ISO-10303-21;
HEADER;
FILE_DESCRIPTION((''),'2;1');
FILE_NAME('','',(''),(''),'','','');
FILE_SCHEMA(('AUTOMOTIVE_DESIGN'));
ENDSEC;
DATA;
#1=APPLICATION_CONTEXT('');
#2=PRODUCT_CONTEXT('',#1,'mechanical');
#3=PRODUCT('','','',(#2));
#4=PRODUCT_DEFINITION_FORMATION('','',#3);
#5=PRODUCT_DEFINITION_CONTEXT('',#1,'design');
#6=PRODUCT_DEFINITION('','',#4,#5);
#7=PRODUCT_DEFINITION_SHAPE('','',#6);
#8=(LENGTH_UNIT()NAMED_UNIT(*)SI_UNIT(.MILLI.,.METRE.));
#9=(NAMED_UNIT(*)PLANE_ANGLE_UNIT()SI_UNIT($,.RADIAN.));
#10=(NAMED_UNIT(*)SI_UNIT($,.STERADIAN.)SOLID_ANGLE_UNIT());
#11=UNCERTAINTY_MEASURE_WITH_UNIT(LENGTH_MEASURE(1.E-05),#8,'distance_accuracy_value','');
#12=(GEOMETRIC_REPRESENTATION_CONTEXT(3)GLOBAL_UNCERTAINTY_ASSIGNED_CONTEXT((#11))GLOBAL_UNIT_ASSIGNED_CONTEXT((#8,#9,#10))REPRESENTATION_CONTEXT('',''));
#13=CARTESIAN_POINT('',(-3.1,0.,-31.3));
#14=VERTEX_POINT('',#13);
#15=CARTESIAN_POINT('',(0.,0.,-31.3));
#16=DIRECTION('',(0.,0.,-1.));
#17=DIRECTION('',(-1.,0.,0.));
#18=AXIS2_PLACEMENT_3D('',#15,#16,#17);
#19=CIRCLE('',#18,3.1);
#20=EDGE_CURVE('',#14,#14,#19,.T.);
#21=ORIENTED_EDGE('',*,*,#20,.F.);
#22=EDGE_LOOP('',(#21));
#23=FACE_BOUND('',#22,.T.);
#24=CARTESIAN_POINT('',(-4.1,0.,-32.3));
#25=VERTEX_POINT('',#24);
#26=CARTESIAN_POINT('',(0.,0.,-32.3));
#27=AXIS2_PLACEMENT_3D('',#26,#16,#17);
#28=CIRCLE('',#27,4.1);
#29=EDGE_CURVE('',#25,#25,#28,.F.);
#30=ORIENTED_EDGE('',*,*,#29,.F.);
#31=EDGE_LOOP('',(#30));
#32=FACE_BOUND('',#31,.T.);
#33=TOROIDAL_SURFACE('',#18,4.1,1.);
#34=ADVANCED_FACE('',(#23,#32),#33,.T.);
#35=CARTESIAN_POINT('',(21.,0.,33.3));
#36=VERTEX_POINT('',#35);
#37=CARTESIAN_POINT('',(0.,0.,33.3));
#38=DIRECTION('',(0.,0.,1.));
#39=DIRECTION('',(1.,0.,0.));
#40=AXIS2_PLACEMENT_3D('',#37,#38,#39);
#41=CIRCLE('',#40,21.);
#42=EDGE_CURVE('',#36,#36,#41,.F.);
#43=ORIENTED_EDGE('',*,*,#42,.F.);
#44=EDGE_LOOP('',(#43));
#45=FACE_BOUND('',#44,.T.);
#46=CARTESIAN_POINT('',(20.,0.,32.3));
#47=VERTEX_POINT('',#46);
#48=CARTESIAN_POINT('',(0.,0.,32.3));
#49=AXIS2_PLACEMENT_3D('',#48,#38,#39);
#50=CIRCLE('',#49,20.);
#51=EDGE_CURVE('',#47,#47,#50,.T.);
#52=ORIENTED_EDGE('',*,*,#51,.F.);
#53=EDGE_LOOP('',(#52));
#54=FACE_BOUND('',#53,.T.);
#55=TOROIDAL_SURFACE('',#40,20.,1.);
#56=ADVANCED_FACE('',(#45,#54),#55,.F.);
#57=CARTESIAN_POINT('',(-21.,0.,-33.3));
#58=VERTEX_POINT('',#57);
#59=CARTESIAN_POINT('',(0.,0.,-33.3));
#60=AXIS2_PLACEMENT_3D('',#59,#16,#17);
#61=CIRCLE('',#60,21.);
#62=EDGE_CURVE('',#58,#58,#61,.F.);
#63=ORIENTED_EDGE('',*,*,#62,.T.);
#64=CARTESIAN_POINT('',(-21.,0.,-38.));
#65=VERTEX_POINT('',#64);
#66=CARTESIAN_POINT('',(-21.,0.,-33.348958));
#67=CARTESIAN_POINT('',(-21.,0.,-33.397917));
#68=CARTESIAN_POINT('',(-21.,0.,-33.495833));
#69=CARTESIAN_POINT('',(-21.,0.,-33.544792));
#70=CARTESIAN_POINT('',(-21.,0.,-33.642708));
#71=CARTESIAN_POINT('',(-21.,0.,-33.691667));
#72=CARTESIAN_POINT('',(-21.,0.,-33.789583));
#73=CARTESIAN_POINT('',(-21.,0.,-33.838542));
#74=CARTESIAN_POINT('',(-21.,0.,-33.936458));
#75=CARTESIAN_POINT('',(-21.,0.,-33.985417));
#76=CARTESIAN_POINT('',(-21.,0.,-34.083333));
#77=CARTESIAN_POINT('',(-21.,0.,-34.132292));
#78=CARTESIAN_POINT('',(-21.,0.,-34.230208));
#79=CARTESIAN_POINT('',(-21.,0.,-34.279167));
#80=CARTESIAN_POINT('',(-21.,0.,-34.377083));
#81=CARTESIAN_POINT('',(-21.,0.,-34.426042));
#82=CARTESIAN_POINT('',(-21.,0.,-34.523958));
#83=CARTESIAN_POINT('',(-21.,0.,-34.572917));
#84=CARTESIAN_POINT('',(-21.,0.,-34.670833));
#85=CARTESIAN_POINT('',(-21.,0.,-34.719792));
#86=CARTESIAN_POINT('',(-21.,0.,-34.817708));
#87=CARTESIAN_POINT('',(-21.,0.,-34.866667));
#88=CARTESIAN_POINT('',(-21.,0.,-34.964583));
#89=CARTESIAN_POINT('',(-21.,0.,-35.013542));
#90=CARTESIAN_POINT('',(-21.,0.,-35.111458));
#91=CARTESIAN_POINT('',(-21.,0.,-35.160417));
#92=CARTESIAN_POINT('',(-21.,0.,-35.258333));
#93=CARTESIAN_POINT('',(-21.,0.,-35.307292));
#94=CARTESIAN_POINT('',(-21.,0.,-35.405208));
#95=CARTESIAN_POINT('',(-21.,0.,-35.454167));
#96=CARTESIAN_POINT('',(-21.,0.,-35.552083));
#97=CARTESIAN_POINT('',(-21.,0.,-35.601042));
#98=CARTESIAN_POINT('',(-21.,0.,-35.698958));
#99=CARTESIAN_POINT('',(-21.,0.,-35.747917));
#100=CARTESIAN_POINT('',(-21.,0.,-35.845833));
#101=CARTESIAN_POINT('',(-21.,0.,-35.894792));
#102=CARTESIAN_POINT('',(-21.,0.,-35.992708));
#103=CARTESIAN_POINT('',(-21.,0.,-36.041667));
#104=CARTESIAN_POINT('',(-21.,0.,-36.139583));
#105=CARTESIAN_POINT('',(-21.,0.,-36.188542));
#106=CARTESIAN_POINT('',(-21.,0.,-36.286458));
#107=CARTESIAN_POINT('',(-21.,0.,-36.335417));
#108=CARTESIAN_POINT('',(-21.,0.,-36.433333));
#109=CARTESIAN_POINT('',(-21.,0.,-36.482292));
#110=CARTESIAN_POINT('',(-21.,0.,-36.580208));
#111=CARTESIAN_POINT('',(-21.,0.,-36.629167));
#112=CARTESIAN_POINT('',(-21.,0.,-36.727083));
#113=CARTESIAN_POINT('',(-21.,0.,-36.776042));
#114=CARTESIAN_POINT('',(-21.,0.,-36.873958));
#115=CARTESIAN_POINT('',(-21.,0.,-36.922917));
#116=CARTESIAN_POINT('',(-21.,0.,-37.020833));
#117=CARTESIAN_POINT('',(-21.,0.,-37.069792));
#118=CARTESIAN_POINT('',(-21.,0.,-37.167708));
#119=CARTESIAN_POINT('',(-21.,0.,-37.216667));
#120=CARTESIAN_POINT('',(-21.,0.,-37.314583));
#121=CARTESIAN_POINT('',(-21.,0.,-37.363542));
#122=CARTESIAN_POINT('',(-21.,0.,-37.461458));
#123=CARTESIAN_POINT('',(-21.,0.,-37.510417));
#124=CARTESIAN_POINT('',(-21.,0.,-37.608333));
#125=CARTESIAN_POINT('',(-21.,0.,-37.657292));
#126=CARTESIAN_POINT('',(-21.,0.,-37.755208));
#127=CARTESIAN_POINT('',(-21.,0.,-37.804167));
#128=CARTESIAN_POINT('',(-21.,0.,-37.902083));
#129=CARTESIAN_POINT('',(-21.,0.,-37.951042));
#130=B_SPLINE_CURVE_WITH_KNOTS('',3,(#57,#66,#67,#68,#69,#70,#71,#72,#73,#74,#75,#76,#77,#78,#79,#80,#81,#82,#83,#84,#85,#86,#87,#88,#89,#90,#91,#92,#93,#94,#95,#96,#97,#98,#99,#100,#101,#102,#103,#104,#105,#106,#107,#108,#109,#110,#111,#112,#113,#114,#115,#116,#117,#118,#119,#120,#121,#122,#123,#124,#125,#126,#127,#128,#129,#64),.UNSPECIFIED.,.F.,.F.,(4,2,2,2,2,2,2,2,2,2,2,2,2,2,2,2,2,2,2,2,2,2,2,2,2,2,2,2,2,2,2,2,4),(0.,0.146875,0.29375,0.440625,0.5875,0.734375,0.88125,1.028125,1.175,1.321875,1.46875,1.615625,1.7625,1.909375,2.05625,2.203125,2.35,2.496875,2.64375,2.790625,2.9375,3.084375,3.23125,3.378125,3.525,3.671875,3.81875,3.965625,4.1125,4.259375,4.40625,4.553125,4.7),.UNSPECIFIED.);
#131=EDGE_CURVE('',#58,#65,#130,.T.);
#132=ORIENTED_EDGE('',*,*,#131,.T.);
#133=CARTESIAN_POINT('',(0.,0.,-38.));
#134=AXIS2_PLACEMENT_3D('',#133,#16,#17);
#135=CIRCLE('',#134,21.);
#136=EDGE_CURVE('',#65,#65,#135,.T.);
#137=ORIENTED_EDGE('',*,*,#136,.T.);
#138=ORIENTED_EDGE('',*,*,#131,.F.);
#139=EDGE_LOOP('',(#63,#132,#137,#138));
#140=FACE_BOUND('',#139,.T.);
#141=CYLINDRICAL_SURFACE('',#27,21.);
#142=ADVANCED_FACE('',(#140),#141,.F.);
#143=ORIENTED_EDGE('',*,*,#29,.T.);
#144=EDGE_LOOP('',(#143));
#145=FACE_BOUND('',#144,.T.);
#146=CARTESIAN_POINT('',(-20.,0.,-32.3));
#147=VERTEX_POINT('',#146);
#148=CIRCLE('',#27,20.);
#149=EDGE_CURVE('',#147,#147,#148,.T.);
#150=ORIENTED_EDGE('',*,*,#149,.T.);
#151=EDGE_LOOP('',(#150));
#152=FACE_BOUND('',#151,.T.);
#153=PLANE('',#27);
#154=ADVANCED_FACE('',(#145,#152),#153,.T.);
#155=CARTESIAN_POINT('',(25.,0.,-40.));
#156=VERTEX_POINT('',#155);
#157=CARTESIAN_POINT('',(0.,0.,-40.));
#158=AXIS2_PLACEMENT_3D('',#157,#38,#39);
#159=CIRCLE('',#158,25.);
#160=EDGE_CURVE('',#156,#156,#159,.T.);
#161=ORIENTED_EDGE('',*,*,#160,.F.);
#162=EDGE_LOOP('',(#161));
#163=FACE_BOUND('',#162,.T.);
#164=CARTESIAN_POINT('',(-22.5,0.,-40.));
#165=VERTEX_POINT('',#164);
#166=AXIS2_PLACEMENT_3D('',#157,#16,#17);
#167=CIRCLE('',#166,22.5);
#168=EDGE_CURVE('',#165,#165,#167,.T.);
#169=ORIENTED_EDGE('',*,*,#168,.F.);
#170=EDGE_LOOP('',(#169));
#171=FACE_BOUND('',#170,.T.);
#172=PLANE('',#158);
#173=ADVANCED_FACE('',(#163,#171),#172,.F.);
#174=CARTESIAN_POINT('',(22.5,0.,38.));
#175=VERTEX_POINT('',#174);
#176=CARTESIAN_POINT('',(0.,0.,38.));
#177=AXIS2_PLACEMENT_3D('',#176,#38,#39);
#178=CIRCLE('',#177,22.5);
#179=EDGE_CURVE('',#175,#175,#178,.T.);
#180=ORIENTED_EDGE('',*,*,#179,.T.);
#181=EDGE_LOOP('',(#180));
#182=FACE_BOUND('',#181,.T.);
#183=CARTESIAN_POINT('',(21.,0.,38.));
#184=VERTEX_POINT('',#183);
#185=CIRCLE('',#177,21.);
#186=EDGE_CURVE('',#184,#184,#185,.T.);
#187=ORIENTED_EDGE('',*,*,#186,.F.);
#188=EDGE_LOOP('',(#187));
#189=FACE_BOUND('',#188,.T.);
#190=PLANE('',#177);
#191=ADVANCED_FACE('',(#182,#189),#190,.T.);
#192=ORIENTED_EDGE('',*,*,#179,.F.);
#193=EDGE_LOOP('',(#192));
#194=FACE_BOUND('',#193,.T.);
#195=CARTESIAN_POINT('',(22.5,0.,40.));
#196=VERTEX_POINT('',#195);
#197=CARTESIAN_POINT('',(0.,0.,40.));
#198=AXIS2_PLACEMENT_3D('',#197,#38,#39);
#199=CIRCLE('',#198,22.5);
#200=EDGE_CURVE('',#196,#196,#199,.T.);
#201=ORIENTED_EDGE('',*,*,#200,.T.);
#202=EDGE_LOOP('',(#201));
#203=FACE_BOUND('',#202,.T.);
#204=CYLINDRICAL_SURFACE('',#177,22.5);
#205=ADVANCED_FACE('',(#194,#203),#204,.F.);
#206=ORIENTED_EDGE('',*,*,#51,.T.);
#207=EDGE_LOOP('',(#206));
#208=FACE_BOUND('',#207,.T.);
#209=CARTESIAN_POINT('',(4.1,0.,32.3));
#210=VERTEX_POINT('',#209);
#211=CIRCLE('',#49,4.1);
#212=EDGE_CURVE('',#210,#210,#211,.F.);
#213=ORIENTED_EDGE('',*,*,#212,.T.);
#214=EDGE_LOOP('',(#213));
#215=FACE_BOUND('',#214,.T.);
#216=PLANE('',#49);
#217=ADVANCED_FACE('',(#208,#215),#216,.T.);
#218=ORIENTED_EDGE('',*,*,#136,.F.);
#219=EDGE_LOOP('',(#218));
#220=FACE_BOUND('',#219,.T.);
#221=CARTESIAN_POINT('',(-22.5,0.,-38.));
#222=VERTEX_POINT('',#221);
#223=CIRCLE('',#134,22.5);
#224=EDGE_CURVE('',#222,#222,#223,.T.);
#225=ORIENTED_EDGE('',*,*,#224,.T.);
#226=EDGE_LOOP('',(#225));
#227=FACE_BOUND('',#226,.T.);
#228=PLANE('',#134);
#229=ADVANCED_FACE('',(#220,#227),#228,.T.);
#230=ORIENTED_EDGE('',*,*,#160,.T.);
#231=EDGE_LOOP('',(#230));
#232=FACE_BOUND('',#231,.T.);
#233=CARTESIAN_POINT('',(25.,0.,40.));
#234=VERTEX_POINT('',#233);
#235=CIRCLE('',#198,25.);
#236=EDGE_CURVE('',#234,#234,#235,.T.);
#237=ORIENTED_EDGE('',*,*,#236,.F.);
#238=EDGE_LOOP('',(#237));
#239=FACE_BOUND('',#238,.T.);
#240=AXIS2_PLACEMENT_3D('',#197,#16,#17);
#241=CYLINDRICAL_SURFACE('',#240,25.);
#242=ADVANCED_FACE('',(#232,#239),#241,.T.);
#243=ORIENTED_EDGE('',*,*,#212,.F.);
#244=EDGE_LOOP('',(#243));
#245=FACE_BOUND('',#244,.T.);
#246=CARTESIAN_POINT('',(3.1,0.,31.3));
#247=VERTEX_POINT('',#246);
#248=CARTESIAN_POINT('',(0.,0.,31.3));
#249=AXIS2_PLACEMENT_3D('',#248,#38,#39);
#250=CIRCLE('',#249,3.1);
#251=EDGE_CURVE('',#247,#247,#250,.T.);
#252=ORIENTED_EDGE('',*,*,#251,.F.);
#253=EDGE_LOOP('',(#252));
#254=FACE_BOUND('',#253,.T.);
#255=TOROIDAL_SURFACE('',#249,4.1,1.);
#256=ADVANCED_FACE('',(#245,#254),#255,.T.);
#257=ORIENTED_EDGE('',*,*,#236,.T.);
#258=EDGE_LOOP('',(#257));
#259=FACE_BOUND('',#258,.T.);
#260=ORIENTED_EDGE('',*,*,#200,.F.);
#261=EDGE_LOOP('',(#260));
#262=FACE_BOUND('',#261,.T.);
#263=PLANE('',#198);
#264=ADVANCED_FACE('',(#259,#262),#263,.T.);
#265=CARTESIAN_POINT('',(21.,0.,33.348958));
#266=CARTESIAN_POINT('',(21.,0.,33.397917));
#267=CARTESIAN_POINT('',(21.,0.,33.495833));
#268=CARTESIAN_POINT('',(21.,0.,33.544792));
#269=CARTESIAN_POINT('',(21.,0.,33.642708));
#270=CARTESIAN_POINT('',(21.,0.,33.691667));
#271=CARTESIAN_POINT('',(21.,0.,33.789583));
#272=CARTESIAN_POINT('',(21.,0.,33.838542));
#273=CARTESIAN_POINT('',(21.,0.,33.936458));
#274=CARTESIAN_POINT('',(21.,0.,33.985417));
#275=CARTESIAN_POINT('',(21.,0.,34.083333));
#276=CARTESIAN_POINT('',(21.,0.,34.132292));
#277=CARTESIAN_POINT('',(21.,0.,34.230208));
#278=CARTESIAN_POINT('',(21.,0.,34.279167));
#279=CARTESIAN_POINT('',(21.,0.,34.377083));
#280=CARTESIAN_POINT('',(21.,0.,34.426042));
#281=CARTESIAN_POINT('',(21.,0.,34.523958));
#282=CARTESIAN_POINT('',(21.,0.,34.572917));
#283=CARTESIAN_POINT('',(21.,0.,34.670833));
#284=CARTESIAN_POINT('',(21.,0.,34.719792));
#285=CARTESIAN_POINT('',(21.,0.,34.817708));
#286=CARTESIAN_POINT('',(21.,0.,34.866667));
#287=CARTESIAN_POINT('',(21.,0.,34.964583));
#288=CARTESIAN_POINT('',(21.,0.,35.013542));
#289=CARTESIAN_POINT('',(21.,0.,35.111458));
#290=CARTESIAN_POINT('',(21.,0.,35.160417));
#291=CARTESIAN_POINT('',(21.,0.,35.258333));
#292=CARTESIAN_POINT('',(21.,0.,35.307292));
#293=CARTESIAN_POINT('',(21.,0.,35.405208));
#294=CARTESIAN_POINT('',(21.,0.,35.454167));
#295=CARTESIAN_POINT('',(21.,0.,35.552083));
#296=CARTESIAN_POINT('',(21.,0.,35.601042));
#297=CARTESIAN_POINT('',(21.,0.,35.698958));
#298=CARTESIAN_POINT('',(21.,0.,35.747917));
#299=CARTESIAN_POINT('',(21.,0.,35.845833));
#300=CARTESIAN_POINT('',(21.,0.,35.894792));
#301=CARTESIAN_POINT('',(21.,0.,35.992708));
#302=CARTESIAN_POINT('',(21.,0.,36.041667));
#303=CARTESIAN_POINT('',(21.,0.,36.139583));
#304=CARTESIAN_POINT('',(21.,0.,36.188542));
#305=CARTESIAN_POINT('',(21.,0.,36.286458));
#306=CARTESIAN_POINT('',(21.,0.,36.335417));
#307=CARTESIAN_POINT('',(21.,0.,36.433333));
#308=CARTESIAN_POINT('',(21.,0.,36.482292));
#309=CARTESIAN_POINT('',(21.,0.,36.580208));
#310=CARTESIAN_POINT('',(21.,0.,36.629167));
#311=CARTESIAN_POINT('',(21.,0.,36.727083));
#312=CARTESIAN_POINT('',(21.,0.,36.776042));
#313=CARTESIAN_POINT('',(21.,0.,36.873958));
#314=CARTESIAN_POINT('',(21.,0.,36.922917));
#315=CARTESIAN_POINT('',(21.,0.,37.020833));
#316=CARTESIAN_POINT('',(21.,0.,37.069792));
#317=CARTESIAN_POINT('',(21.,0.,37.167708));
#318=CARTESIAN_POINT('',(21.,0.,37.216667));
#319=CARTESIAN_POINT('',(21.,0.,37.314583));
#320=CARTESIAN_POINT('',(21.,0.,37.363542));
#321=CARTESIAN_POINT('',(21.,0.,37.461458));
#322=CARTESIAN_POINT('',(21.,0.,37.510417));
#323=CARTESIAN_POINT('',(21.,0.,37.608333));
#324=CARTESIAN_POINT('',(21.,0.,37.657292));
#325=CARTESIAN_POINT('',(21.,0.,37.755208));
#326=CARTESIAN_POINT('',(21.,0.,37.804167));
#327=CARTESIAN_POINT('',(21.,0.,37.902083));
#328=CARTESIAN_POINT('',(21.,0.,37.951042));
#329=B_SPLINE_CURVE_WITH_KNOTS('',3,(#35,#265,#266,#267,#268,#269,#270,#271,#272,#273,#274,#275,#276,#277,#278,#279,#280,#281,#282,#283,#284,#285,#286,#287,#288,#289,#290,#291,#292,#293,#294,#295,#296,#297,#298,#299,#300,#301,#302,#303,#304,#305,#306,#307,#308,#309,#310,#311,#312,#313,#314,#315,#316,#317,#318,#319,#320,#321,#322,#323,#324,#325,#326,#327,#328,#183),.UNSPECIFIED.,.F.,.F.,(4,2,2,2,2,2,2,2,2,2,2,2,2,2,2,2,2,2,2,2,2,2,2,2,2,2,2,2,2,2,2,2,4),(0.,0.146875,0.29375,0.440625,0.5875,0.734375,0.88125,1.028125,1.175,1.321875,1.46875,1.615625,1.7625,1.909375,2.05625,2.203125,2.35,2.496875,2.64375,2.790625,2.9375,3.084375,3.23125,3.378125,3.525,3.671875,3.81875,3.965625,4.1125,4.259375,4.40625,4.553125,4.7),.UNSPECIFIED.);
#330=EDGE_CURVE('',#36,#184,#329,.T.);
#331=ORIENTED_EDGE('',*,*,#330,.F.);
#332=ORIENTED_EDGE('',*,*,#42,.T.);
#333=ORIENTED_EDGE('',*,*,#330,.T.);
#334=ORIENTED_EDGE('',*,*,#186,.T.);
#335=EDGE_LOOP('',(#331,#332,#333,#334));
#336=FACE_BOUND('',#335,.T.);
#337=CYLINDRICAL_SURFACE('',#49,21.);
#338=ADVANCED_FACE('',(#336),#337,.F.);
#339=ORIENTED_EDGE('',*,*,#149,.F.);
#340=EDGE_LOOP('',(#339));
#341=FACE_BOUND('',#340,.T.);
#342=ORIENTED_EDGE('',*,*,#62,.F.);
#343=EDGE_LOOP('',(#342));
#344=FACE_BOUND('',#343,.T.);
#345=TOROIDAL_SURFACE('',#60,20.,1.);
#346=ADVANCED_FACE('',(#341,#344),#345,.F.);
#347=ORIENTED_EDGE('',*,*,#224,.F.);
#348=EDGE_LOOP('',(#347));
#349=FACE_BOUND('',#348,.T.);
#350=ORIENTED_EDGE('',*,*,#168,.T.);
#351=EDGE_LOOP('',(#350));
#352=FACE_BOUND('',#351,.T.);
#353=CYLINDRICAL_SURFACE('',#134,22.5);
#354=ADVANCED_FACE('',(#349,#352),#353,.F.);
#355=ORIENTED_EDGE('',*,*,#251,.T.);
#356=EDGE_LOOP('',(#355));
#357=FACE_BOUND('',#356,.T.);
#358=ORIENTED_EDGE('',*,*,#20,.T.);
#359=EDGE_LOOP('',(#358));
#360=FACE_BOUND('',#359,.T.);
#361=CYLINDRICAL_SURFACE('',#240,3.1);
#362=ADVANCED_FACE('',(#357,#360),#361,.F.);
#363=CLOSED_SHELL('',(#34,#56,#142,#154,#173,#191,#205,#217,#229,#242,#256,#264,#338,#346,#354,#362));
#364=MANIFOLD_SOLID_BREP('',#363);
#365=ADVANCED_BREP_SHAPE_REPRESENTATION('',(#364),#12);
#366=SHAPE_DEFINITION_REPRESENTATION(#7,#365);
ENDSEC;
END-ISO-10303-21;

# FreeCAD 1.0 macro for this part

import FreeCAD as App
import Part
import Sketcher


def edges_at(feature, points):
    """Names of the edges that pass closest to the given points."""
    edges = feature.Shape.Edges
    near = lambda p: min(range(len(edges)), key=lambda i: edges[i].distToShape(Part.Vertex(*p))[0])
    return sorted({f"Edge{near(p) + 1}" for p in points})

doc = App.newDocument("Part")
body = doc.addObject("PartDesign::Body", "Body")

# Sketch on XY plane
sketch1 = doc.addObject("Sketcher::SketchObject", "Sketch")
body.addObject(sketch1)
sketch1.AttachmentSupport = (doc.XY_Plane, [""])
sketch1.MapMode = "FlatFace"
sketch1.addGeometry(Part.Circle(App.Vector(0, 0, 0), App.Vector(0, 0, 1), 25), False)
sketch1.addGeometry(Part.Circle(App.Vector(0, 0, 0), App.Vector(0, 0, 1), 3.1), False)
sketch1.addConstraint(Sketcher.Constraint("Coincident", 0, 3, -1, 1))
sketch1.addConstraint(Sketcher.Constraint("Coincident", 1, 3, -1, 1))
sketch1.addConstraint(Sketcher.Constraint("Diameter", 0, 50.0))
sketch1.addConstraint(Sketcher.Constraint("Diameter", 1, 6.2))
pad1 = doc.addObject("PartDesign::Pad", "Pad")
body.addObject(pad1)
pad1.Profile = sketch1
pad1.Length = 80
pad1.Midplane = True

# Sketch on XY plane
sketch2 = doc.addObject("Sketcher::SketchObject", "Sketch001")
body.addObject(sketch2)
sketch2.AttachmentSupport = (doc.XY_Plane, [""])
sketch2.MapMode = "FlatFace"
sketch2.AttachmentOffset = App.Placement(App.Vector(0, 0, 40), App.Rotation())
sketch2.addGeometry(Part.Circle(App.Vector(0, 0, 0), App.Vector(0, 0, 1), 21), False)
sketch2.addConstraint(Sketcher.Constraint("Coincident", 0, 3, -1, 1))
sketch2.addConstraint(Sketcher.Constraint("Diameter", 0, 42.0))
pocket1 = doc.addObject("PartDesign::Pocket", "Pocket")
body.addObject(pocket1)
pocket1.Profile = sketch2
pocket1.Length = 7.7

# Sketch on XY plane
sketch3 = doc.addObject("Sketcher::SketchObject", "Sketch002")
body.addObject(sketch3)
sketch3.AttachmentSupport = (doc.XY_Plane, [""])
sketch3.MapMode = "FlatFace"
sketch3.AttachmentOffset = App.Placement(App.Vector(0, 0, -32.3), App.Rotation())
sketch3.addGeometry(Part.Circle(App.Vector(0, 0, 0), App.Vector(0, 0, 1), 21), False)
sketch3.addConstraint(Sketcher.Constraint("Coincident", 0, 3, -1, 1))
sketch3.addConstraint(Sketcher.Constraint("Diameter", 0, 42.0))
pocket2 = doc.addObject("PartDesign::Pocket", "Pocket001")
body.addObject(pocket2)
pocket2.Profile = sketch3
pocket2.Length = 7.7
doc.recompute()

fillet = doc.addObject("PartDesign::Fillet", "Fillet")
body.addObject(fillet)
fillet.Base = (pocket2, edges_at(pocket2, [
    (-21, 0, 32.3),
    (-3.1, 0, 32.3),
    (-21, 0, -32.3),
    (-3.1, 0, -32.3),
]))
fillet.Radius = 1

# Sketch on XY plane
sketch4 = doc.addObject("Sketcher::SketchObject", "Sketch003")
body.addObject(sketch4)
sketch4.AttachmentSupport = (doc.XY_Plane, [""])
sketch4.MapMode = "FlatFace"
sketch4.AttachmentOffset = App.Placement(App.Vector(0, 0, 40), App.Rotation())
sketch4.addGeometry(Part.Circle(App.Vector(0, 0, 0), App.Vector(0, 0, 1), 22.5), False)
sketch4.addGeometry(Part.Circle(App.Vector(0, 0, 0), App.Vector(0, 0, 1), 21), False)
sketch4.addConstraint(Sketcher.Constraint("Coincident", 0, 3, -1, 1))
sketch4.addConstraint(Sketcher.Constraint("Coincident", 1, 3, -1, 1))
sketch4.addConstraint(Sketcher.Constraint("Diameter", 0, 45.0))
sketch4.addConstraint(Sketcher.Constraint("Diameter", 1, 42.0))
pocket3 = doc.addObject("PartDesign::Pocket", "Pocket002")
body.addObject(pocket3)
pocket3.Profile = sketch4
pocket3.Length = 2

# Sketch on XY plane
sketch5 = doc.addObject("Sketcher::SketchObject", "Sketch004")
body.addObject(sketch5)
sketch5.AttachmentSupport = (doc.XY_Plane, [""])
sketch5.MapMode = "FlatFace"
sketch5.AttachmentOffset = App.Placement(App.Vector(0, 0, -38), App.Rotation())
sketch5.addGeometry(Part.Circle(App.Vector(0, 0, 0), App.Vector(0, 0, 1), 22.5), False)
sketch5.addGeometry(Part.Circle(App.Vector(0, 0, 0), App.Vector(0, 0, 1), 21), False)
sketch5.addConstraint(Sketcher.Constraint("Coincident", 0, 3, -1, 1))
sketch5.addConstraint(Sketcher.Constraint("Coincident", 1, 3, -1, 1))
sketch5.addConstraint(Sketcher.Constraint("Diameter", 0, 45.0))
sketch5.addConstraint(Sketcher.Constraint("Diameter", 1, 42.0))
pocket4 = doc.addObject("PartDesign::Pocket", "Pocket003")
body.addObject(pocket4)
pocket4.Profile = sketch5
pocket4.Length = 2

doc.recompute()
